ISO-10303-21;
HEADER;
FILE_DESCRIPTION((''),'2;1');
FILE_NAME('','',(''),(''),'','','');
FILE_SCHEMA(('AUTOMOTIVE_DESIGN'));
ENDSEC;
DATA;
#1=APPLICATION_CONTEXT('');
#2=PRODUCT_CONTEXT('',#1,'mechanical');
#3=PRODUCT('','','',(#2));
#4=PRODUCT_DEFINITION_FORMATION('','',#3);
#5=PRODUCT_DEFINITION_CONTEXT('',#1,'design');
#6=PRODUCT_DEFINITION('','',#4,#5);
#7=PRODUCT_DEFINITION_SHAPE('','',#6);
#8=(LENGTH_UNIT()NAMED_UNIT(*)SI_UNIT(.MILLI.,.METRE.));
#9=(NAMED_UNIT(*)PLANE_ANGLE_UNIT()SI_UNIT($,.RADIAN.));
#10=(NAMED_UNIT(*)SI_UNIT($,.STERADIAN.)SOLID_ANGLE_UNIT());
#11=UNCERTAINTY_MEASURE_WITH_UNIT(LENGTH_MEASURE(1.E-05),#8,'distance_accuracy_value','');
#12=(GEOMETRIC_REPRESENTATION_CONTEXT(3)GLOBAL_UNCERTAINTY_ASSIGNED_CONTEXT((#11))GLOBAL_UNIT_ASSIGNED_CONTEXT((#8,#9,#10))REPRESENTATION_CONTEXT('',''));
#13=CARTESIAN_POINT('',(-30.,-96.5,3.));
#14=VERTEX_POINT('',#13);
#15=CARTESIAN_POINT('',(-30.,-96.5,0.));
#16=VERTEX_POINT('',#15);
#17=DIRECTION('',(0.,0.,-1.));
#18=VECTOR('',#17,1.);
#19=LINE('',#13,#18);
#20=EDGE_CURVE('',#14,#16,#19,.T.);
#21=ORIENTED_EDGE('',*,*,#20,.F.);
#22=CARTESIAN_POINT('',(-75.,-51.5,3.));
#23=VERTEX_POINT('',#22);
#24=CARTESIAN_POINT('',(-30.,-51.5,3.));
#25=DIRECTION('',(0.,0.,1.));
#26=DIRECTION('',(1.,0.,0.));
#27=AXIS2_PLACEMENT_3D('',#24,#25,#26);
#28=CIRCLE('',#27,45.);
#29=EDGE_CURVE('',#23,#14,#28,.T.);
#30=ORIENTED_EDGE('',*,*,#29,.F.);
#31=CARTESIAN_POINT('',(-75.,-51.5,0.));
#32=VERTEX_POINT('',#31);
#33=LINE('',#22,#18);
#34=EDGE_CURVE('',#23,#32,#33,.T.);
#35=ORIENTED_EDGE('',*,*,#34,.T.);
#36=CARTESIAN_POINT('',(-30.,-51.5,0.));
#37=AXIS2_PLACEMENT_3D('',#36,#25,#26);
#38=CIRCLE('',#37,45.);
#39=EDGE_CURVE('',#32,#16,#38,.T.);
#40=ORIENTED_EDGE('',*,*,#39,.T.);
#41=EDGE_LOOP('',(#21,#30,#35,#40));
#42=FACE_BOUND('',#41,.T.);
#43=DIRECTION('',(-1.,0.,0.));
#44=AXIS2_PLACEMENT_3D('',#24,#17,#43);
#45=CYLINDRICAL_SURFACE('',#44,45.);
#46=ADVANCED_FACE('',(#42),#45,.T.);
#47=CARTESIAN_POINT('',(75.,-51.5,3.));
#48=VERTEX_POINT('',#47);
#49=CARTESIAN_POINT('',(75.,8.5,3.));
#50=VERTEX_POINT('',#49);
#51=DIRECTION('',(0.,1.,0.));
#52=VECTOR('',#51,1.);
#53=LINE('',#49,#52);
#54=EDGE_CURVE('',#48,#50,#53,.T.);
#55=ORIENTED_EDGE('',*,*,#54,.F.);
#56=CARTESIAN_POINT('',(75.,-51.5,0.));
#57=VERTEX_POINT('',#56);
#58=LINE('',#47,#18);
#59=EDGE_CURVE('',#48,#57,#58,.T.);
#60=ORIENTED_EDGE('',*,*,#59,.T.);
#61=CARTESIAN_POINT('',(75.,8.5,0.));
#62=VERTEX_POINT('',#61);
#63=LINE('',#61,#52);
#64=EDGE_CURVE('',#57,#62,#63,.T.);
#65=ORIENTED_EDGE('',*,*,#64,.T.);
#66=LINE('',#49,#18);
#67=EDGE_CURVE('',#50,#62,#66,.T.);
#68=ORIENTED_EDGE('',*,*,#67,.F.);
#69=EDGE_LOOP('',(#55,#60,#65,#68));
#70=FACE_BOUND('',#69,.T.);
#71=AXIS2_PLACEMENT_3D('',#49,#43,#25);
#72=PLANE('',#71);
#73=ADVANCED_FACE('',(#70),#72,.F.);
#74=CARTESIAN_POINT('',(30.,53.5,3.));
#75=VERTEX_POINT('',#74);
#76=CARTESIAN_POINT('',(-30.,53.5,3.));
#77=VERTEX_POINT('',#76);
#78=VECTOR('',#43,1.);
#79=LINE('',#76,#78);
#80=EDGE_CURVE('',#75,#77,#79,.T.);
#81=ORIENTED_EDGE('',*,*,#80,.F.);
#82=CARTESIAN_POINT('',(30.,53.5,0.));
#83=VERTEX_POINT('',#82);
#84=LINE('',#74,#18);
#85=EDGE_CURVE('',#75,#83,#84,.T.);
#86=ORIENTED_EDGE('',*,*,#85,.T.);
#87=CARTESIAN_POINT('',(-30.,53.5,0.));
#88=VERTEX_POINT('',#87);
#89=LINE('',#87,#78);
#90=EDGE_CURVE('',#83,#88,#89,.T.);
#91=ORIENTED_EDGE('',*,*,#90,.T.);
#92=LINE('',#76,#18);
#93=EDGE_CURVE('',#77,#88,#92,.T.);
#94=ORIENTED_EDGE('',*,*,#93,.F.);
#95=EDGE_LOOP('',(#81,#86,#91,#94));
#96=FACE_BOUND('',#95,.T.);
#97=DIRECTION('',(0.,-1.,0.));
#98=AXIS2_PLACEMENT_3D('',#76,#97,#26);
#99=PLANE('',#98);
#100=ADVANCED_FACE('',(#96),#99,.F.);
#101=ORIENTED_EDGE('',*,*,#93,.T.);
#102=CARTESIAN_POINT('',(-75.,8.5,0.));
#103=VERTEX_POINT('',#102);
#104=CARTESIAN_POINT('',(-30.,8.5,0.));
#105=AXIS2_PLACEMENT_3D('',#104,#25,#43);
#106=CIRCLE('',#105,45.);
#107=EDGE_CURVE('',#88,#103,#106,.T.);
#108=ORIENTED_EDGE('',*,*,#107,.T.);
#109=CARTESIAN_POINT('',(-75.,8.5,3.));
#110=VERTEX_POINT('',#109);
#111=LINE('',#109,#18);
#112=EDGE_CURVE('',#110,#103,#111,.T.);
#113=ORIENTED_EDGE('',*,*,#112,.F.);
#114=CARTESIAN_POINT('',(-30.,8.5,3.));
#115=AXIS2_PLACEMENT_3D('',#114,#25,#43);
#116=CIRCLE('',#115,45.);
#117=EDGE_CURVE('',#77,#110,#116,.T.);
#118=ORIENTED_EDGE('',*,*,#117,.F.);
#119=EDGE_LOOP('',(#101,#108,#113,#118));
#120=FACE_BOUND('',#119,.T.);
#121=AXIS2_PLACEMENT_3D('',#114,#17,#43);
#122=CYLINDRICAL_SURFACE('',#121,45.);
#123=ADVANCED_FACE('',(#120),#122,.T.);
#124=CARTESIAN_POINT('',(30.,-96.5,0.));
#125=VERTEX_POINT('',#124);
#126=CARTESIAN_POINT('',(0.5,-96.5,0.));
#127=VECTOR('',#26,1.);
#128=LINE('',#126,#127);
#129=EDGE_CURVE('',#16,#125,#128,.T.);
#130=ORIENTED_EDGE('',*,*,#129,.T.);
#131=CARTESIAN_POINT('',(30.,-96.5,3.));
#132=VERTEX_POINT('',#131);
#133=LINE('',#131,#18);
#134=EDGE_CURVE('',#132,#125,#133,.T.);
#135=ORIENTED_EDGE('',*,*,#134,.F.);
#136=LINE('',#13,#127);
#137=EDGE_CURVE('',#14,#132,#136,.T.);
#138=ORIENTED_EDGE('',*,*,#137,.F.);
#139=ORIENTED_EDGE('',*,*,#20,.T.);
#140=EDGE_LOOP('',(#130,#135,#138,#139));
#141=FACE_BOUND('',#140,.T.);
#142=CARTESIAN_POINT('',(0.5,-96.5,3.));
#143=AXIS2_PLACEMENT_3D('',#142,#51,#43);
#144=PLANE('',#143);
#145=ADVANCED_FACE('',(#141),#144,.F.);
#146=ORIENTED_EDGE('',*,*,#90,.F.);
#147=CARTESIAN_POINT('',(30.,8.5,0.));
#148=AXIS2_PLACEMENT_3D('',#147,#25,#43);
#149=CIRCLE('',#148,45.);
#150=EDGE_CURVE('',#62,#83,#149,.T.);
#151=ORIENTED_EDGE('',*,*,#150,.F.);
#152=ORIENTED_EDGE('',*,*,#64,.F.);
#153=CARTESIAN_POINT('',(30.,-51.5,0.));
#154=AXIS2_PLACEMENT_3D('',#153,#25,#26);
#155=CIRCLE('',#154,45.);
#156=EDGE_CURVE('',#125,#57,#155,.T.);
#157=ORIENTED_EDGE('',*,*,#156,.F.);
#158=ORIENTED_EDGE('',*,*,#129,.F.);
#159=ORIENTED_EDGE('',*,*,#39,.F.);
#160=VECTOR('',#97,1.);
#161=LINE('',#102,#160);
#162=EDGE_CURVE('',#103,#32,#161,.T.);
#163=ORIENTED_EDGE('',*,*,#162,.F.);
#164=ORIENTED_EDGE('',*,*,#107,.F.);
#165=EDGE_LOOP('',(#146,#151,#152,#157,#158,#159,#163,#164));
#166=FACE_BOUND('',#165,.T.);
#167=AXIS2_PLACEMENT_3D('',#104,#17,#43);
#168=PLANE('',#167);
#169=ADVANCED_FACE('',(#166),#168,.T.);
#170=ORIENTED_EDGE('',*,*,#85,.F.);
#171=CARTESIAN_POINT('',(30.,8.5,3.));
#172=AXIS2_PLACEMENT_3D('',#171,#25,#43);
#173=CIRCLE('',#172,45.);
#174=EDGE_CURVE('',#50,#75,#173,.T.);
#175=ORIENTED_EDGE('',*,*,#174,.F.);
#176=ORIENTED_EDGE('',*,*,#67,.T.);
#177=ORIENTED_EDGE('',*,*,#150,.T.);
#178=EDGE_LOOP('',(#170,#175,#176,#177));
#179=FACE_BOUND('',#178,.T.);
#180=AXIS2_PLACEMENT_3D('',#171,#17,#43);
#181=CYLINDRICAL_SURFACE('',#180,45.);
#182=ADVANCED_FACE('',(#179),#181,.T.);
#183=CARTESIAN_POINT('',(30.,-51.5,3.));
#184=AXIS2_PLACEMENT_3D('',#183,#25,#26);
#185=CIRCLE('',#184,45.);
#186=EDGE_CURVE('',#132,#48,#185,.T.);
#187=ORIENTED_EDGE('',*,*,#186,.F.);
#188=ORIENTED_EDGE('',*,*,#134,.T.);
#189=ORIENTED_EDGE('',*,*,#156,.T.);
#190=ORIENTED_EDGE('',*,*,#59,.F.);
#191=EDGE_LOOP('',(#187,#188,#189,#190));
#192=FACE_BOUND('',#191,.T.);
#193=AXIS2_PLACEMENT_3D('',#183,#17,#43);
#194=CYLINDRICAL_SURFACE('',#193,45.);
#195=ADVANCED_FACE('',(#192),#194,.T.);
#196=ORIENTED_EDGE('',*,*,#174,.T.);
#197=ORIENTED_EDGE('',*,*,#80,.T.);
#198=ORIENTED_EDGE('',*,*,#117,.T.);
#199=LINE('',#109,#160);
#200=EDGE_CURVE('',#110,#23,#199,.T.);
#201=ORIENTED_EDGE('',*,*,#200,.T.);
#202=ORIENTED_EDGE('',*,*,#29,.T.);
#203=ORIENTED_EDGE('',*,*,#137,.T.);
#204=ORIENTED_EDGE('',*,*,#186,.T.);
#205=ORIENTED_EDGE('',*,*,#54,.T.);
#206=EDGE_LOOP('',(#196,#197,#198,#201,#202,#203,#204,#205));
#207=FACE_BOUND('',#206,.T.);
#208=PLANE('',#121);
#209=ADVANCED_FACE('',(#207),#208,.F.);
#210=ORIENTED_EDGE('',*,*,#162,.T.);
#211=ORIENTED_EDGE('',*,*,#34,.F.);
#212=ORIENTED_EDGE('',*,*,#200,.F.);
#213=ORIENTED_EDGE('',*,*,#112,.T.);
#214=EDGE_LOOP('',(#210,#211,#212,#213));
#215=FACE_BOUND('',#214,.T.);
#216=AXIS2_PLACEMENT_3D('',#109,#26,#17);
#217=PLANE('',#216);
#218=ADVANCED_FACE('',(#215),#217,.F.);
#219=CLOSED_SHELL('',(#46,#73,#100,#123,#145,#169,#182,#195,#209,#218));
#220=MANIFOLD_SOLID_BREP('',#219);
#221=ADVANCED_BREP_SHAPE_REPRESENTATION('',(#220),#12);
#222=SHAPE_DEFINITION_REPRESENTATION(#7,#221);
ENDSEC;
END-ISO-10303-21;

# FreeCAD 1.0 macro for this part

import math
import FreeCAD as App
import Part
import Sketcher

V = App.Vector
Q = App.Units.Quantity

doc = App.newDocument("Part")
body = doc.addObject("PartDesign::Body", "Body")

sketch1 = doc.addObject("Sketcher::SketchObject", "Sketch")
body.addObject(sketch1)
sketch1.AttachmentSupport = (doc.XY_Plane, [""])
sketch1.MapMode = "FlatFace"
sketch1.addGeometry(Part.LineSegment(V(30, 53.5, 0), V(-30, 53.5, 0)), False)
sketch1.addGeometry(Part.ArcOfCircle(Part.Circle(V(-30, 8.5, 0), V(0, 0, 1), 45), math.radians(90), math.radians(180)), False)
sketch1.addGeometry(Part.LineSegment(V(-75, 8.5, 0), V(-75, -51.5, 0)), False)
sketch1.addGeometry(Part.ArcOfCircle(Part.Circle(V(-30, -51.5, 0), V(0, 0, 1), 45), math.radians(-180), math.radians(-90)), False)
sketch1.addGeometry(Part.LineSegment(V(-30, -96.5, 0), V(30, -96.5, 0)), False)
sketch1.addGeometry(Part.ArcOfCircle(Part.Circle(V(30, -51.5, 0), V(0, 0, 1), 45), math.radians(-90), math.radians(0)), False)
sketch1.addGeometry(Part.LineSegment(V(75, -51.5, 0), V(75, 8.5, 0)), False)
sketch1.addGeometry(Part.ArcOfCircle(Part.Circle(V(30, 8.5, 0), V(0, 0, 1), 45), math.radians(0), math.radians(90)), False)
sketch1.addConstraint(Sketcher.Constraint("Tangent", 0, 2, 1, 1))
sketch1.addConstraint(Sketcher.Constraint("Tangent", 1, 2, 2, 1))
sketch1.addConstraint(Sketcher.Constraint("Tangent", 2, 2, 3, 1))
sketch1.addConstraint(Sketcher.Constraint("Tangent", 3, 2, 4, 1))
sketch1.addConstraint(Sketcher.Constraint("Tangent", 4, 2, 5, 1))
sketch1.addConstraint(Sketcher.Constraint("Tangent", 5, 2, 6, 1))
sketch1.addConstraint(Sketcher.Constraint("Tangent", 6, 2, 7, 1))
sketch1.addConstraint(Sketcher.Constraint("Tangent", 7, 2, 0, 1))
sketch1.addConstraint(Sketcher.Constraint("Horizontal", 0))
sketch1.addConstraint(Sketcher.Constraint("Vertical", 2))
sketch1.addConstraint(Sketcher.Constraint("Horizontal", 4))
sketch1.addConstraint(Sketcher.Constraint("Vertical", 6))
sketch1.addConstraint(Sketcher.Constraint("Equal", 1, 3))
sketch1.addConstraint(Sketcher.Constraint("Equal", 3, 5))
sketch1.addConstraint(Sketcher.Constraint("Equal", 5, 7))
sketch1.addConstraint(Sketcher.Constraint("Equal", 4, 2))
sketch1.addConstraint(Sketcher.Constraint("Radius", 1, Q("45 mm")))
sketch1.addConstraint(Sketcher.Constraint("DistanceX", 0, 2, 0, 1, Q("60 mm")))
sketch1.addConstraint(Sketcher.Constraint("DistanceX", 1, 3, -1, 1, Q("30 mm")))
sketch1.addConstraint(Sketcher.Constraint("DistanceY", -1, 1, 1, 3, Q("8.5 mm")))
pad1 = doc.addObject("PartDesign::Pad", "Pad")
body.addObject(pad1)
pad1.Profile = sketch1
pad1.Length = 3

doc.recompute()
